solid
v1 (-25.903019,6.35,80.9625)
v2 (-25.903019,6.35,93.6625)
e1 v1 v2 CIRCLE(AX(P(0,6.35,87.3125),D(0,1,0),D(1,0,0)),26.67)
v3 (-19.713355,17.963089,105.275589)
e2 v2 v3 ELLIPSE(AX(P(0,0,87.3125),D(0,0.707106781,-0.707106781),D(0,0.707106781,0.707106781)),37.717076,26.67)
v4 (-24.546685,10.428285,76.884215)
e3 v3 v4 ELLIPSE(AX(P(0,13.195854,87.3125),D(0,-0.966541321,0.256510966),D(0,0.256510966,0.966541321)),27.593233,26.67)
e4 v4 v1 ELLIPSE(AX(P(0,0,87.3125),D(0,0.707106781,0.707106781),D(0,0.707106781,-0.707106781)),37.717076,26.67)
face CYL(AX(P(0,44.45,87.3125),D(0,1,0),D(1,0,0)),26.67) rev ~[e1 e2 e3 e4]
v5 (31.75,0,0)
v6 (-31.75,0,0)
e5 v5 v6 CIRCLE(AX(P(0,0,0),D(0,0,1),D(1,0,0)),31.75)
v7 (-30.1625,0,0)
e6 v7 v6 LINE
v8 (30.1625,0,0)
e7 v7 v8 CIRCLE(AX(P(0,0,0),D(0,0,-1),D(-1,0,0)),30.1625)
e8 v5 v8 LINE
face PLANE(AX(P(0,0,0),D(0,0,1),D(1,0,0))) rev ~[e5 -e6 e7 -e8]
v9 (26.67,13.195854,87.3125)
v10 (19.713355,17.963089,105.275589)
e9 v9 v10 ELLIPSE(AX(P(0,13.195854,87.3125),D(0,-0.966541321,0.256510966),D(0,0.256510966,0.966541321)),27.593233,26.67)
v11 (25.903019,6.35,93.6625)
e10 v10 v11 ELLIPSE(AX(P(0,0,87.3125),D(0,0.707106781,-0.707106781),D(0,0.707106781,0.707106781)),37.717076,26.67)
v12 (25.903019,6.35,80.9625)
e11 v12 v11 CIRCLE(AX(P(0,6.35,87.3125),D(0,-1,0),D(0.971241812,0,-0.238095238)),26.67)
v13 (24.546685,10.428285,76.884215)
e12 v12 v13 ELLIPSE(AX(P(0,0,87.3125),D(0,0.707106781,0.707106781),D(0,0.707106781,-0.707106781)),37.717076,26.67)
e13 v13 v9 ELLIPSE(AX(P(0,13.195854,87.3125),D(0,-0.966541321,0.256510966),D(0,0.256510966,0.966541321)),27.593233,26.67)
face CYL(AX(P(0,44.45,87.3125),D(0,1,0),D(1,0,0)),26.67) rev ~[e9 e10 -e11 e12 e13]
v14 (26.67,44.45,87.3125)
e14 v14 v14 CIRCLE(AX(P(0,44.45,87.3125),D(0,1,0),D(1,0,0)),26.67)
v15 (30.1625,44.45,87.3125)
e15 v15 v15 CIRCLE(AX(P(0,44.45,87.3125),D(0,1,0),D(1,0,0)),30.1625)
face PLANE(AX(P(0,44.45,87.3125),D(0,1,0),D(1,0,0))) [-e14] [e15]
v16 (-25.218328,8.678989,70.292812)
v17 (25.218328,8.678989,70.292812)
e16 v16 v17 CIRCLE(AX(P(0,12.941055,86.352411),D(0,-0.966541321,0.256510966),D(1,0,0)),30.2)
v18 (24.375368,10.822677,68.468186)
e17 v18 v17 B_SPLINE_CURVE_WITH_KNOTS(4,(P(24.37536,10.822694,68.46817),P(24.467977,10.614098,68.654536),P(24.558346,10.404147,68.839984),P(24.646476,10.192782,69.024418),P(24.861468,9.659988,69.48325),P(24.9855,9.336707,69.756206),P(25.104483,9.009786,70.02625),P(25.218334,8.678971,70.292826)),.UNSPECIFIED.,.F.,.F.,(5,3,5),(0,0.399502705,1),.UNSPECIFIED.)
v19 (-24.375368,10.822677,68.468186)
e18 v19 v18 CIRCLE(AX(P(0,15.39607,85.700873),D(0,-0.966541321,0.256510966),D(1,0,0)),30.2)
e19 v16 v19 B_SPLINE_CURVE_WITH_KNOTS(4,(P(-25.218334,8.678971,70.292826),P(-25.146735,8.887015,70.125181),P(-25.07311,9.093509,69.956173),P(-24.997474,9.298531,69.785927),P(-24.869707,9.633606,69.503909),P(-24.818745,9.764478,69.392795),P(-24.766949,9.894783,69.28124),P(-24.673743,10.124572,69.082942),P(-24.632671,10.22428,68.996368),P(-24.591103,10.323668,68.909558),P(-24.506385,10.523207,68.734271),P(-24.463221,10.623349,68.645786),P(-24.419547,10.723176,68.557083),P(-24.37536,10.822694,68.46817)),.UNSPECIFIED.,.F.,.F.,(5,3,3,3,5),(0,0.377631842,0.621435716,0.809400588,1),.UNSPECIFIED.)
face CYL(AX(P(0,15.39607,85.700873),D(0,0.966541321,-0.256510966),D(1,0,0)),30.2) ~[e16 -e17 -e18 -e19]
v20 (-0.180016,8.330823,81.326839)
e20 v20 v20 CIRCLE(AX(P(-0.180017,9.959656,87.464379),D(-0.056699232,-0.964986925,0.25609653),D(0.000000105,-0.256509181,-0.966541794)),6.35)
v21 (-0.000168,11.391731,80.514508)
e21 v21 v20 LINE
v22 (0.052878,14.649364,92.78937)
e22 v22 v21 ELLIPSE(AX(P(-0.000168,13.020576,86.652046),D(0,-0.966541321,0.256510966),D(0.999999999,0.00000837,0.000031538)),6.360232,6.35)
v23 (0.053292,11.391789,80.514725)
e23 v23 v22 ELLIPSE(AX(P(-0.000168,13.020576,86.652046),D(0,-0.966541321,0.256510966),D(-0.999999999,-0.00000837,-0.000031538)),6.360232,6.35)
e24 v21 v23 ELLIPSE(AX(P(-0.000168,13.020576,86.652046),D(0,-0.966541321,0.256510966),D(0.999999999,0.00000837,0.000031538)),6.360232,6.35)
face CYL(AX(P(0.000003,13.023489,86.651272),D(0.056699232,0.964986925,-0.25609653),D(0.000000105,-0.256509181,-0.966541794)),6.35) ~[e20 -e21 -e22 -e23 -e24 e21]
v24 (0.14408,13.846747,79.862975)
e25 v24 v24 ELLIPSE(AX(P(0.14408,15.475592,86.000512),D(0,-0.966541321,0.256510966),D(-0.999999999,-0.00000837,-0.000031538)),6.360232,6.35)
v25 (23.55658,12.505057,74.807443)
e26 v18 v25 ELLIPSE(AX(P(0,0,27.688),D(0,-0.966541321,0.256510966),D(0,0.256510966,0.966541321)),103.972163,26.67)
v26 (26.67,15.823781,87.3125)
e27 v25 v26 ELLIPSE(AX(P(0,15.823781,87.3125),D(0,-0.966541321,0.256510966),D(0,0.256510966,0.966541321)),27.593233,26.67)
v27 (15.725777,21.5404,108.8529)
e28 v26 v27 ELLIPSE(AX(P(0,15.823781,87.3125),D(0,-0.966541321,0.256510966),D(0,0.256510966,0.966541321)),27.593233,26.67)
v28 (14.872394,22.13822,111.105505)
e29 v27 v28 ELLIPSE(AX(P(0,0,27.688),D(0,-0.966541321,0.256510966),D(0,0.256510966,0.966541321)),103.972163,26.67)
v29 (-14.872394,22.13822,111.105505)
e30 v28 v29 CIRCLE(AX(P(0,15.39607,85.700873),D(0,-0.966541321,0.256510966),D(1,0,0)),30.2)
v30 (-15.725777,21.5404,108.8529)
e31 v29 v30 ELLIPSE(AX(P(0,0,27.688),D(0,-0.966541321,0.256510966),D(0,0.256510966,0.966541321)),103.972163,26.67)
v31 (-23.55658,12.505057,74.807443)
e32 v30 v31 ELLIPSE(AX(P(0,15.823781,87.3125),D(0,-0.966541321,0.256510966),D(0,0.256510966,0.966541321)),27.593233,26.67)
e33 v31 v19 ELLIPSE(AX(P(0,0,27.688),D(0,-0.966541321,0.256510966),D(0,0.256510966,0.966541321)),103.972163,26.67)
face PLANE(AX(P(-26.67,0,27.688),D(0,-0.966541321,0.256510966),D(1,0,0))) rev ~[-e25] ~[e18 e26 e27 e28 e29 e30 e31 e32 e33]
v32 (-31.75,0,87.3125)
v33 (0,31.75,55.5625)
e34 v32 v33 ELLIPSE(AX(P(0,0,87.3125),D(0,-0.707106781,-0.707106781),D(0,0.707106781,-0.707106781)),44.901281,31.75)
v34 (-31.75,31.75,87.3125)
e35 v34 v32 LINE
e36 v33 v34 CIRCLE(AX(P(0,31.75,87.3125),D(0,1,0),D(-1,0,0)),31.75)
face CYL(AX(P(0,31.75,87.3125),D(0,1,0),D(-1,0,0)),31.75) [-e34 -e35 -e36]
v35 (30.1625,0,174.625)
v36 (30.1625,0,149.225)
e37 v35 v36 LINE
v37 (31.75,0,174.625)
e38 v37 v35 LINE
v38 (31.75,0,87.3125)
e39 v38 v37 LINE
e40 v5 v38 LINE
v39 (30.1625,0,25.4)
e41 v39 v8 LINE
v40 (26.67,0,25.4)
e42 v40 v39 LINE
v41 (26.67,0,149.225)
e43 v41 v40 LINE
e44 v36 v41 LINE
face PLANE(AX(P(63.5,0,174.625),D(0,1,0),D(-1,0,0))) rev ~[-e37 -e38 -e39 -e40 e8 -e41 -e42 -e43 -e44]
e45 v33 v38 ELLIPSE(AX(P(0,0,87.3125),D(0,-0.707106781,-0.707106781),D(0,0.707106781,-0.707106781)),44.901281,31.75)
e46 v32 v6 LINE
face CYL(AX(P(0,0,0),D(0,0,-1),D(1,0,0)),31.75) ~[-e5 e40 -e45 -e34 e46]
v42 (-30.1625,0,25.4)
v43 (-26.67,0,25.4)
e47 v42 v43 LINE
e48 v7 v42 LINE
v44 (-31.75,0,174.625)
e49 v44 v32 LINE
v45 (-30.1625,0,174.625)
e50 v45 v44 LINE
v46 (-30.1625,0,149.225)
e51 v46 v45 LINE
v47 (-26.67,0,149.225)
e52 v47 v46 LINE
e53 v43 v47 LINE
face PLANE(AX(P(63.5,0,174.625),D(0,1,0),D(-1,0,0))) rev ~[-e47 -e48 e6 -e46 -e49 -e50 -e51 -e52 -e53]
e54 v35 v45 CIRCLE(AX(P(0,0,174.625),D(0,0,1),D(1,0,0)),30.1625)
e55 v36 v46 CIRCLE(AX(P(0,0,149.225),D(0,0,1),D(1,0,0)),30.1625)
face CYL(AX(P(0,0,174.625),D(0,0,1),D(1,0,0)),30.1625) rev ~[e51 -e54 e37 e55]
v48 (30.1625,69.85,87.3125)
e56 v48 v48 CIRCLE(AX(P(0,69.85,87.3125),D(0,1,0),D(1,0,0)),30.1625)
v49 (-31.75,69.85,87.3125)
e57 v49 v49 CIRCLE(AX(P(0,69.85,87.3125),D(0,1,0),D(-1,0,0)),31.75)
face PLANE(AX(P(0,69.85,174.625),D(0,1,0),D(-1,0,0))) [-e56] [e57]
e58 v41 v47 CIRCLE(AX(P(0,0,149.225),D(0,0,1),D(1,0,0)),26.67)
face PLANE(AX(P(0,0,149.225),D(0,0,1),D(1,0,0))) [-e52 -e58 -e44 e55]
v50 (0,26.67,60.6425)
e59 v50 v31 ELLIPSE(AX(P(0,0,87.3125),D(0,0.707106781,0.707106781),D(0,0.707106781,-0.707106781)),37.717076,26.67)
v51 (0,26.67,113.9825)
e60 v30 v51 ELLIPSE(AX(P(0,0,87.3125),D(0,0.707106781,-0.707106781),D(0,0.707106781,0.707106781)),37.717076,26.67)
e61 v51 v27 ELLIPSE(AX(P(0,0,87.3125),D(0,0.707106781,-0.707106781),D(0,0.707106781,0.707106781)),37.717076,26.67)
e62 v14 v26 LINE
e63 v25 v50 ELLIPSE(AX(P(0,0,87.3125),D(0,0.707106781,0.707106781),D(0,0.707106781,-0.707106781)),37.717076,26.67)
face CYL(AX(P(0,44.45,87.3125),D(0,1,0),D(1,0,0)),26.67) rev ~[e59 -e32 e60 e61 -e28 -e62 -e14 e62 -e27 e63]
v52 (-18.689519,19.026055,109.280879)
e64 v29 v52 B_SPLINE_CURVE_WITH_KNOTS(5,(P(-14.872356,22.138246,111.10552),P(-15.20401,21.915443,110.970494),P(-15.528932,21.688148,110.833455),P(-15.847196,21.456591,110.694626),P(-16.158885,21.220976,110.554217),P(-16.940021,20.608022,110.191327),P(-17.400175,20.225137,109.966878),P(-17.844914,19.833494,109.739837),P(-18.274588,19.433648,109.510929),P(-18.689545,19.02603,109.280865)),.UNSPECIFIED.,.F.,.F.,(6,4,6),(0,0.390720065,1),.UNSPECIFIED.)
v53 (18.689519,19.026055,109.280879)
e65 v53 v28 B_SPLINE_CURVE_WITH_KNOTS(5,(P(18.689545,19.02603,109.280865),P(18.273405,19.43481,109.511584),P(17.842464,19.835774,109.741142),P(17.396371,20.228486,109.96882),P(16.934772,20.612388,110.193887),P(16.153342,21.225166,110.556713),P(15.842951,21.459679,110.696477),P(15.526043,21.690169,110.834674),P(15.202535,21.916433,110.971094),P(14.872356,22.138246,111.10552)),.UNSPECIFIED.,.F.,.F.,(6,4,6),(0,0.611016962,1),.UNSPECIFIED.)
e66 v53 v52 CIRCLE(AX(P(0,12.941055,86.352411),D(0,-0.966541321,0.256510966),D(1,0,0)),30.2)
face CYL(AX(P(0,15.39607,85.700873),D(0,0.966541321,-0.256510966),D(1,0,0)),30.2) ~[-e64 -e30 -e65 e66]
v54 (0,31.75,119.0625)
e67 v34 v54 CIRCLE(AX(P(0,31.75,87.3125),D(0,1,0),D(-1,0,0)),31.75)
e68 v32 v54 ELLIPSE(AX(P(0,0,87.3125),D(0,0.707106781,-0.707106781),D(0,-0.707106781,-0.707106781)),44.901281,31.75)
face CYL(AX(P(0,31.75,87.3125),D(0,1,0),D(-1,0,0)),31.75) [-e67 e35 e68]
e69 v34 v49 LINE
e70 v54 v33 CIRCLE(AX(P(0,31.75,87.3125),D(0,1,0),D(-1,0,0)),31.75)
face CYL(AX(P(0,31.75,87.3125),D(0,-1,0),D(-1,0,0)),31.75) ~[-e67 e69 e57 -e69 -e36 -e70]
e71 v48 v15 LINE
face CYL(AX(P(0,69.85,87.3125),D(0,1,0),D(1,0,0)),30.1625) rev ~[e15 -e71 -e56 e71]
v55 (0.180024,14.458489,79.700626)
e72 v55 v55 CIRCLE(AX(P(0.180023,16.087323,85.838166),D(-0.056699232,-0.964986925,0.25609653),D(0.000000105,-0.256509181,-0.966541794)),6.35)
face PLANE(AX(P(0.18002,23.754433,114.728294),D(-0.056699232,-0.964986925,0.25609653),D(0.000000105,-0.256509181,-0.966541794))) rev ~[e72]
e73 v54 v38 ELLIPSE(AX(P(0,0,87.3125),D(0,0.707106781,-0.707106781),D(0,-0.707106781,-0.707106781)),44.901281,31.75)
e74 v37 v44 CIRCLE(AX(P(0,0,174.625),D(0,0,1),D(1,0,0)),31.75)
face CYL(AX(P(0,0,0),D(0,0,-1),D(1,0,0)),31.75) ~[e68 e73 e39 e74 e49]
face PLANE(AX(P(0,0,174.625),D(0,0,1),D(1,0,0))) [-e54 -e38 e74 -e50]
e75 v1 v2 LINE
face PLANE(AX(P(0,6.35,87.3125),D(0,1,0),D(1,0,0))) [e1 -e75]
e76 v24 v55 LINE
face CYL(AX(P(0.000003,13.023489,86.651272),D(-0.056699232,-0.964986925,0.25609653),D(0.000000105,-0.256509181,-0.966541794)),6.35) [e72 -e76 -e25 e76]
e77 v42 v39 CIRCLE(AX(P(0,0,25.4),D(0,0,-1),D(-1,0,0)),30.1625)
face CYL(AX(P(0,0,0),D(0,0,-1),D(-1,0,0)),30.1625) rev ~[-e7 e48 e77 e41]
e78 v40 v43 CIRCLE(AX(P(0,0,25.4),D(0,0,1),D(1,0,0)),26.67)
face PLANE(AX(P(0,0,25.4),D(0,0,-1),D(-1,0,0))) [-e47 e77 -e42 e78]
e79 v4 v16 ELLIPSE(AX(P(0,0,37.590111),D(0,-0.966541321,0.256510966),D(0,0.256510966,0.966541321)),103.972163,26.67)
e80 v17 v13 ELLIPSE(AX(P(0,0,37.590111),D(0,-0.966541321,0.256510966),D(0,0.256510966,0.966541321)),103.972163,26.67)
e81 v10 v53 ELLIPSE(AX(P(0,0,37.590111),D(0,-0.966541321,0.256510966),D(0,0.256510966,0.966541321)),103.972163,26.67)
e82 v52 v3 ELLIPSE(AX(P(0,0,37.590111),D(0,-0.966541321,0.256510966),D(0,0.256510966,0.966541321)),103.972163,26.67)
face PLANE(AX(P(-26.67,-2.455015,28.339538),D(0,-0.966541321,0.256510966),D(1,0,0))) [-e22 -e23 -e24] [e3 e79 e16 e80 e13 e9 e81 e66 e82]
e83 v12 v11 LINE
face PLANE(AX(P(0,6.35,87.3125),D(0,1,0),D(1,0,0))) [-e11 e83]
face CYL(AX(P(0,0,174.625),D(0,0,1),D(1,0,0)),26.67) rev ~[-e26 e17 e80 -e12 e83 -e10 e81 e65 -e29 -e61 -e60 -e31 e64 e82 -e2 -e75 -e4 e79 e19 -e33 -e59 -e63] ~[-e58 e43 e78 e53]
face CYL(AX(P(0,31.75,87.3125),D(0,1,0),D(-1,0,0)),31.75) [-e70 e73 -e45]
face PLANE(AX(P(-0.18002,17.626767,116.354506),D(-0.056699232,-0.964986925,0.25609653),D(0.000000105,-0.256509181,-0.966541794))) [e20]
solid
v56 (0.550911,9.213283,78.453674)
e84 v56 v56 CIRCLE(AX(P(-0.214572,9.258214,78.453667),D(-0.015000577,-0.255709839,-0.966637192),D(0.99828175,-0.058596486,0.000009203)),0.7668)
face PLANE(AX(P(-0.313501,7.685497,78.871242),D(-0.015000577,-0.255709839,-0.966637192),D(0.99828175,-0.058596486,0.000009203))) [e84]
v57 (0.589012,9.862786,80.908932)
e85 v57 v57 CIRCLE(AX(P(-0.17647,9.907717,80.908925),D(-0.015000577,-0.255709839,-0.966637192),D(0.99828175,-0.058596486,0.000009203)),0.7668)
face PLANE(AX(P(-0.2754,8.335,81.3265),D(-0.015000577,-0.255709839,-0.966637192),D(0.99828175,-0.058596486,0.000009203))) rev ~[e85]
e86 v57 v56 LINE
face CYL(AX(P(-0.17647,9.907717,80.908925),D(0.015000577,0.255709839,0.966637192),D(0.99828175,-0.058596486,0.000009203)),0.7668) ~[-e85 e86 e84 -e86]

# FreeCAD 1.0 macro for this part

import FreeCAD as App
import Part
import Sketcher
from FreeCAD import Vector
Q = App.Units.Quantity


def add_polygon(sketch, points):
    """Adds a closed chain of lines whose ends are joined by coincident constraints."""
    first, n = sketch.GeometryCount, len(points)
    for a, b in zip(points, points[1:] + points[:1]):
        sketch.addGeometry(Part.LineSegment(App.Vector(*a, 0), App.Vector(*b, 0)), False)
    for i in range(n):
        sketch.addConstraint(Sketcher.Constraint("Coincident", first + i, 2, first + (i + 1) % n, 1))

doc = App.newDocument("Part")
body = doc.addObject("PartDesign::Body", "Body")
body.AllowCompound = True

# Sketch on XY plane
sketch1 = body.newObject("Sketcher::SketchObject", "Sketch")
sketch1.AttachmentSupport = (doc.getObject("XY_Plane"), [""])
sketch1.MapMode = "FlatFace"
sketch1.addGeometry(Part.Circle(Vector(0, 0, 0), Vector(0, 0, 1), 32), False)
sketch1.addConstraint([
    Sketcher.Constraint("Coincident", 0, 3, -1, 1),
    Sketcher.Constraint("Diameter", 0, Q("2.5 in")),
])
pad1 = body.newObject("PartDesign::Pad", "Pad")
pad1.Profile = sketch1
pad1.Length = Q("6.875 in")

# Sketch on XZ plane
sketch2 = body.newObject("Sketcher::SketchObject", "Sketch001")
sketch2.AttachmentSupport = (doc.getObject("XZ_Plane"), [""])
sketch2.MapMode = "FlatFace"
sketch2.AttachmentOffset = App.Placement(Vector(0, 0, -1.25 * 25.4), App.Rotation())
sketch2.addGeometry(Part.Circle(Vector(0, 87, 0), Vector(0, 0, 1), 32), False)
sketch2.addConstraint([
    Sketcher.Constraint("PointOnObject", 0, 3, -2),
    Sketcher.Constraint("Diameter", 0, Q("2.5 in")),
    Sketcher.Constraint("DistanceY", -1, 1, 0, 3, Q("3.4375 in")),
])
pad2 = body.newObject("PartDesign::Pad", "Pad001")
pad2.Profile = sketch2
pad2.Type = "TwoLengths"
pad2.Length = Q("1.5 in")
pad2.Length2 = Q("1.25 in")
pad2.Reversed = True

# Sketch on XZ plane
sketch3 = body.newObject("Sketcher::SketchObject", "Sketch002")
sketch3.AttachmentSupport = (doc.getObject("XZ_Plane"), [""])
sketch3.MapMode = "FlatFace"
sketch3.AttachmentOffset = App.Placement(Vector(0, 0, -2.75 * 25.4), App.Rotation())
sketch3.addGeometry(Part.Circle(Vector(0, 87, 0), Vector(0, 0, 1), 30), False)
sketch3.addConstraint([
    Sketcher.Constraint("PointOnObject", 0, 3, -2),
    Sketcher.Constraint("Diameter", 0, Q("2.375 in")),
    Sketcher.Constraint("DistanceY", -1, 1, 0, 3, Q("3.4375 in")),
])
pocket1 = body.newObject("PartDesign::Pocket", "Pocket")
pocket1.Profile = sketch3
pocket1.Length = Q("1 in")
pocket1.Reversed = True

# Sketch on XZ plane
sketch4 = body.newObject("Sketcher::SketchObject", "Sketch003")
sketch4.AttachmentSupport = (doc.getObject("XZ_Plane"), [""])
sketch4.MapMode = "FlatFace"
sketch4.AttachmentOffset = App.Placement(Vector(0, 0, -1.75 * 25.4), App.Rotation())
sketch4.addGeometry(Part.Circle(Vector(0, 87, 0), Vector(0, 0, 1), 27), False)
sketch4.addConstraint([
    Sketcher.Constraint("PointOnObject", 0, 3, -2),
    Sketcher.Constraint("Diameter", 0, Q("2.1 in")),
    Sketcher.Constraint("DistanceY", -1, 1, 0, 3, Q("3.4375 in")),
])
pocket2 = body.newObject("PartDesign::Pocket", "Pocket001")
pocket2.Profile = sketch4
pocket2.Length = Q("1.5 in")
pocket2.Reversed = True

# Sketch on XY plane
sketch5 = body.newObject("Sketcher::SketchObject", "Sketch004")
sketch5.AttachmentSupport = (doc.getObject("XY_Plane"), [""])
sketch5.MapMode = "FlatFace"
sketch5.AttachmentOffset = App.Placement(Vector(0, 0, 6.875 * 25.4), App.Rotation())
sketch5.addGeometry(Part.Circle(Vector(0, 0, 0), Vector(0, 0, 1), 27), False)
sketch5.addConstraint([
    Sketcher.Constraint("Coincident", 0, 3, -1, 1),
    Sketcher.Constraint("Diameter", 0, Q("2.1 in")),
])
pocket3 = body.newObject("PartDesign::Pocket", "Pocket002")
pocket3.Profile = sketch5
pocket3.Length = Q("7 in")

# Sketch on XY plane
sketch6 = body.newObject("Sketcher::SketchObject", "Sketch005")
sketch6.AttachmentSupport = (doc.getObject("XY_Plane"), [""])
sketch6.MapMode = "FlatFace"
sketch6.AttachmentOffset = App.Placement(Vector(0, 0, 6.875 * 25.4), App.Rotation())
sketch6.addGeometry([
    Part.Circle(Vector(0, 0, 0), Vector(0, 0, 1), 30),
    Part.Circle(Vector(0, 0, 0), Vector(0, 0, 1), 27),
], False)
sketch6.addConstraint([
    Sketcher.Constraint("Coincident", 0, 3, -1, 1),
    Sketcher.Constraint("Coincident", 1, 3, -1, 1),
    Sketcher.Constraint("Diameter", 0, Q("2.375 in")),
    Sketcher.Constraint("Diameter", 1, Q("2.1 in")),
])
pocket4 = body.newObject("PartDesign::Pocket", "Pocket003")
pocket4.Profile = sketch6
pocket4.Length = Q("1 in")

# Sketch on XY plane
sketch7 = body.newObject("Sketcher::SketchObject", "Sketch006")
sketch7.AttachmentSupport = (doc.getObject("XY_Plane"), [""])
sketch7.MapMode = "FlatFace"
sketch7.addGeometry([
    Part.Circle(Vector(0, 0, 0), Vector(0, 0, 1), 30),
    Part.Circle(Vector(0, 0, 0), Vector(0, 0, 1), 27),
], False)
sketch7.addConstraint([
    Sketcher.Constraint("Coincident", 0, 3, -1, 1),
    Sketcher.Constraint("Coincident", 1, 3, -1, 1),
    Sketcher.Constraint("Diameter", 0, Q("2.375 in")),
    Sketcher.Constraint("Diameter", 1, Q("2.1 in")),
])
pocket5 = body.newObject("PartDesign::Pocket", "Pocket004")
pocket5.Profile = sketch7
pocket5.Length = Q("1 in")
pocket5.Reversed = True

# Sketch on XY plane
sketch8 = body.newObject("Sketcher::SketchObject", "Sketch007")
sketch8.AttachmentSupport = (doc.getObject("XY_Plane"), [""])
sketch8.MapMode = "FlatFace"
sketch8.AttachmentOffset = App.Placement(Vector(0, 0, 6.875 * 25.4), App.Rotation())
add_polygon(sketch8, [(-64, 0), (-64, -52), (64, -52), (64, 0)])  # lines 0-3
sketch8.addConstraint([
    Sketcher.Constraint("Vertical", 0),
    Sketcher.Constraint("Horizontal", 1),
    Sketcher.Constraint("Vertical", 2),
    Sketcher.Constraint("Horizontal", 3),
    Sketcher.Constraint("Symmetric", 2, 2, 3, 2, -1, 1),
    Sketcher.Constraint("DistanceX", 1, 1, 1, 2, Q("5 in")),
    Sketcher.Constraint("DistanceY", 0, 2, 0, 1, Q("2.0625 in")),
])
pocket6 = body.newObject("PartDesign::Pocket", "Pocket005")
pocket6.Profile = sketch8
pocket6.Length = Q("8 in")

# Sketch on an angled plane
sketch9 = body.newObject("Sketcher::SketchObject", "Sketch008")
sketch9.Placement = App.Placement(Vector(-26.67, 0, 27.688), App.Rotation(Vector(1, 0, 0), Vector(0, 0.256510966, 0.966541321), Vector(0, -0.966541321, 0.256510966), "ZXY"))
sketch9.addGeometry(Part.Circle(Vector(27, 60, 0), Vector(0, 0, 1), 30), False)
sketch9.addConstraint([
    Sketcher.Constraint("Diameter", 0, Q("60.4 mm")),
    Sketcher.Constraint("DistanceX", -1, 1, 0, 3, Q("1.05 in")),
    Sketcher.Constraint("DistanceY", -1, 1, 0, 3, Q("60.021 mm")),
])
pad3 = body.newObject("PartDesign::Pad", "Pad002")
pad3.Profile = sketch9
pad3.Length = Q("0.1 in")

# Sketch on an angled plane
sketch10 = body.newObject("Sketcher::SketchObject", "Sketch009")
sketch10.Placement = App.Placement(Vector(0, 20.6906, 115.5414), App.Rotation(Vector(0.000000105, -0.256509181, -0.966541794), Vector(0.998391305, -0.054802151, 0.014543975), Vector(-0.056699232, -0.964986925, 0.25609653), "ZXY"))
sketch10.addGeometry(Part.Circle(Vector(30, 0, 0), Vector(0, 0, 1), 6), False)
sketch10.addConstraint([
    Sketcher.Constraint("PointOnObject", 0, 3, -1),
    Sketcher.Constraint("Diameter", 0, Q("0.5 in")),
    Sketcher.Constraint("DistanceX", -1, 1, 0, 3, Q("29.8902 mm")),
])
pad4 = body.newObject("PartDesign::Pad", "Pad003")
pad4.Profile = sketch10
pad4.Length = Q("0.25 in")
pad4.Midplane = True

# Sketch on an angled plane
sketch11 = body.newObject("Sketcher::SketchObject", "Sketch010")
sketch11.Placement = App.Placement(Vector(-0.2754, 8.335, 81.3265), App.Rotation(Vector(0.99828175, -0.058596486, 0.000009203), Vector(-0.056643896, -0.96497613, 0.256149447), Vector(-0.015000577, -0.255709839, -0.966637192), "ZXY"))
sketch11.addGeometry(Part.Circle(Vector(0, -1.6, 0), Vector(0, 0, 1), 0.8), False)
sketch11.addConstraint([
    Sketcher.Constraint("Diameter", 0, Q("1.5336 mm")),
    Sketcher.Constraint("DistanceX", -1, 1, 0, 3, Q("0.0066 mm")),
    Sketcher.Constraint("DistanceY", 0, 3, -1, 1, Q("1.6302 mm")),
])
pad5 = body.newObject("PartDesign::Pad", "Pad004")
pad5.Profile = sketch11
pad5.Length = Q("0.1 in")

doc.recompute()
